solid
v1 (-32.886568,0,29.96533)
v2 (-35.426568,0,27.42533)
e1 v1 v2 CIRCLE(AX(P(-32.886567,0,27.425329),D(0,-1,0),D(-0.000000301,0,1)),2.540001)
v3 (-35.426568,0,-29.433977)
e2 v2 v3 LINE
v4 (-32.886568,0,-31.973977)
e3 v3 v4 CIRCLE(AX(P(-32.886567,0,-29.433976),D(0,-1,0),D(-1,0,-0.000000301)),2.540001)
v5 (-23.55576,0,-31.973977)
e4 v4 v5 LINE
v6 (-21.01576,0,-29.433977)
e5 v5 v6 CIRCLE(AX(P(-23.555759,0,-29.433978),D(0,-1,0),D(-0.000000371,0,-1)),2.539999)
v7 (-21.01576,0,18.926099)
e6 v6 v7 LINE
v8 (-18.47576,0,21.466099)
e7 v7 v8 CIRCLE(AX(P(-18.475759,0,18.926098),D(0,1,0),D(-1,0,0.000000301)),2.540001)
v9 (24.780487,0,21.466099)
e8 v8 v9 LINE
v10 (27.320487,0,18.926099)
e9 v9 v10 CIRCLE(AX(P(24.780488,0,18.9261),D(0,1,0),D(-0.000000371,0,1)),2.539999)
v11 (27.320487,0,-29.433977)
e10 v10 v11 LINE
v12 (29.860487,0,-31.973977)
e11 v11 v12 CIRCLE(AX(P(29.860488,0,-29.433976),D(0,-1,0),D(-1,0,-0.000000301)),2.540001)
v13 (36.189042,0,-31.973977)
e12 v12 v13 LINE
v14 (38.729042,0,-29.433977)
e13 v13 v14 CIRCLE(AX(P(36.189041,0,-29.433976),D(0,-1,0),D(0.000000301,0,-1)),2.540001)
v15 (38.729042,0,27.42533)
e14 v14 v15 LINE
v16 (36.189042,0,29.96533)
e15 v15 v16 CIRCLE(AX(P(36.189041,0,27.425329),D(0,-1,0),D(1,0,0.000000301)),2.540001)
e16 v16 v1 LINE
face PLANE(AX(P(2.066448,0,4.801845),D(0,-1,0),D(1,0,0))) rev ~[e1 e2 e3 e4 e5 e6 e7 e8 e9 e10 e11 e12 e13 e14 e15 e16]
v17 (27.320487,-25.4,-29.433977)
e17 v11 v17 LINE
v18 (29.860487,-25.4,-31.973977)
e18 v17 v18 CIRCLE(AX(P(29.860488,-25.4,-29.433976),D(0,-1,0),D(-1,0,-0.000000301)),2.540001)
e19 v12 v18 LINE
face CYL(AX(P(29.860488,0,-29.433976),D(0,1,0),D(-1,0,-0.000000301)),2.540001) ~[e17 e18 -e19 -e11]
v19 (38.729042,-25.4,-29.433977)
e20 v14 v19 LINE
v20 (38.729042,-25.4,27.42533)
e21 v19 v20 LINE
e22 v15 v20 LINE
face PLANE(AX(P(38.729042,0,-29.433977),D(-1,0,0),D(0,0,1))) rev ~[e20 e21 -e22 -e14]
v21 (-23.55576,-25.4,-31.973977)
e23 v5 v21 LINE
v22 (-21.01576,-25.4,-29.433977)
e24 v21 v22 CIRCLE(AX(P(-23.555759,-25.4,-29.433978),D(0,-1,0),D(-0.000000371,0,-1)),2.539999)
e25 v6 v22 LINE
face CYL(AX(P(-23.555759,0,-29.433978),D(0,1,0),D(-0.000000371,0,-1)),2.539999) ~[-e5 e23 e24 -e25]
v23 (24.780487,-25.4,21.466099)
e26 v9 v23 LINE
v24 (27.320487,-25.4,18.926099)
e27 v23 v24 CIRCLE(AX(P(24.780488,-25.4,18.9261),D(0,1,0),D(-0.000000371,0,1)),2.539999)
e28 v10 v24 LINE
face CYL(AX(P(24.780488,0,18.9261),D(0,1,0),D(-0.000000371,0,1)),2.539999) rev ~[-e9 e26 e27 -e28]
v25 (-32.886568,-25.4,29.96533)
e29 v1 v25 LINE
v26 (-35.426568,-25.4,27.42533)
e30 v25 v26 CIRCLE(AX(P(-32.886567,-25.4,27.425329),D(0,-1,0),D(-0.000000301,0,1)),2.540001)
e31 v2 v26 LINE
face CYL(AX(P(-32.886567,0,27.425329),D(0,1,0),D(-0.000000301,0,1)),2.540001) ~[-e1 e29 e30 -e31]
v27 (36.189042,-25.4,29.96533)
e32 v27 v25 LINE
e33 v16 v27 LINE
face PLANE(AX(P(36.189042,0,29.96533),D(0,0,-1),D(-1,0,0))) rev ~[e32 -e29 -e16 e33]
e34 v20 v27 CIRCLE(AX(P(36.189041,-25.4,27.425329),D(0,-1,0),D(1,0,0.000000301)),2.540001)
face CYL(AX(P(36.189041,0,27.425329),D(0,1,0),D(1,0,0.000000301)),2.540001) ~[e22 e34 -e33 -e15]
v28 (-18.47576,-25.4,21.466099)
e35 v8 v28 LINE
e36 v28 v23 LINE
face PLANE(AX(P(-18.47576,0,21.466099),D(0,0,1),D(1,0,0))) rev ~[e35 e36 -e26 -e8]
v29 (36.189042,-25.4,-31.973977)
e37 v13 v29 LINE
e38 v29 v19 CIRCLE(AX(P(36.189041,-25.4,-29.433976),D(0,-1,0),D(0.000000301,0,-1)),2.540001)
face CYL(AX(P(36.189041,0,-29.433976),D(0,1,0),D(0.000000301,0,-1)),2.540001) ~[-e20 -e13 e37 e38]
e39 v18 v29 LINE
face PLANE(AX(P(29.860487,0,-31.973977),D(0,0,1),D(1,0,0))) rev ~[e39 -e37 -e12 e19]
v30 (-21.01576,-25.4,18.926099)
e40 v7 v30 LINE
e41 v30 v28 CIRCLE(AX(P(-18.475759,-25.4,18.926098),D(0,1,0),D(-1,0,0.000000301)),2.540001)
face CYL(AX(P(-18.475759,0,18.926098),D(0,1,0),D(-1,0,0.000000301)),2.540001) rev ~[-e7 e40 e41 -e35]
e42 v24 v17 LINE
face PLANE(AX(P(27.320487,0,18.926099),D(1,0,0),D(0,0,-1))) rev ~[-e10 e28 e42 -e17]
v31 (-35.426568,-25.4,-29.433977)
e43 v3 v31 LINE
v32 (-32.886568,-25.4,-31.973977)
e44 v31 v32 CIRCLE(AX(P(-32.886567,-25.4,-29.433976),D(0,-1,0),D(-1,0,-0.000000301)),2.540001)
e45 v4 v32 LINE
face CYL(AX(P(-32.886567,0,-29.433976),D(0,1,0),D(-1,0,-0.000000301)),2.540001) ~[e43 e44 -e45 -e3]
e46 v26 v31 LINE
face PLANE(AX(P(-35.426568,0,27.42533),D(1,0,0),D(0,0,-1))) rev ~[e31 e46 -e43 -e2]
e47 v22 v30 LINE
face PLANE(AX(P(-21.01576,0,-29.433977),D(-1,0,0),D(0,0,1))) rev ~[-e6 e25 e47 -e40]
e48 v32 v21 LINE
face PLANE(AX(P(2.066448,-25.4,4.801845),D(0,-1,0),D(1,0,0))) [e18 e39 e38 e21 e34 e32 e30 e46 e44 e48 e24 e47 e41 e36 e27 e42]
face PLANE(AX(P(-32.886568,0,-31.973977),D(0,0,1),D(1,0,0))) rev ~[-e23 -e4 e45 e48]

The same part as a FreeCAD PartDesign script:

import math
import FreeCAD as App
import Part
import Sketcher

V = App.Vector
Q = App.Units.Quantity

doc = App.newDocument("Part")
body = doc.addObject("PartDesign::Body", "Body")

# Sketch on XZ plane
sketch1 = doc.addObject("Sketcher::SketchObject", "Sketch")
body.addObject(sketch1)
sketch1.AttachmentSupport = (doc.XZ_Plane, [""])
sketch1.MapMode = "FlatFace"
sketch1.addGeometry(Part.LineSegment(V(36.189042, 29.96533, 0), V(-32.886568, 29.96533, 0)), False)
sketch1.addGeometry(Part.ArcOfCircle(Part.Circle(V(-32.886567, 27.425329, 0), V(0, 0, 1), 2.540001), math.radians(90.000017), math.radians(179.999983)), False)
sketch1.addGeometry(Part.LineSegment(V(-35.426568, 27.42533, 0), V(-35.426568, -29.433977, 0)), False)
sketch1.addGeometry(Part.ArcOfCircle(Part.Circle(V(-32.886567, -29.433976, 0), V(0, 0, 1), 2.540001), math.radians(-179.999983), math.radians(-90.000017)), False)
sketch1.addGeometry(Part.LineSegment(V(-32.886568, -31.973977, 0), V(-23.55576, -31.973977, 0)), False)
sketch1.addGeometry(Part.ArcOfCircle(Part.Circle(V(-23.555759, -29.433978, 0), V(0, 0, 1), 2.539999), math.radians(-90.000021), math.radians(0.000021)), False)
sketch1.addGeometry(Part.LineSegment(V(-21.01576, -29.433977, 0), V(-21.01576, 18.926099, 0)), False)
sketch1.addGeometry(Part.ArcOfCircle(Part.Circle(V(-18.475759, 18.926098, 0), V(0, 0, 1), 2.540001), math.radians(90.000017), math.radians(179.999983)), False)
sketch1.addGeometry(Part.LineSegment(V(-18.47576, 21.466099, 0), V(24.780487, 21.466099, 0)), False)
sketch1.addGeometry(Part.ArcOfCircle(Part.Circle(V(24.780488, 18.9261, 0), V(0, 0, 1), 2.539999), math.radians(-0.000021), math.radians(90.000021)), False)
sketch1.addGeometry(Part.LineSegment(V(27.320487, 18.926099, 0), V(27.320487, -29.433977, 0)), False)
sketch1.addGeometry(Part.ArcOfCircle(Part.Circle(V(29.860488, -29.433976, 0), V(0, 0, 1), 2.540001), math.radians(-179.999983), math.radians(-90.000017)), False)
sketch1.addGeometry(Part.LineSegment(V(29.860487, -31.973977, 0), V(36.189042, -31.973977, 0)), False)
sketch1.addGeometry(Part.ArcOfCircle(Part.Circle(V(36.189041, -29.433976, 0), V(0, 0, 1), 2.540001), math.radians(-89.999983), math.radians(-0.000017)), False)
sketch1.addGeometry(Part.LineSegment(V(38.729042, -29.433977, 0), V(38.729042, 27.42533, 0)), False)
sketch1.addGeometry(Part.ArcOfCircle(Part.Circle(V(36.189041, 27.425329, 0), V(0, 0, 1), 2.540001), math.radians(0.000017), math.radians(89.999983)), False)
sketch1.addConstraint(Sketcher.Constraint("Tangent", 0, 2, 1, 1))
sketch1.addConstraint(Sketcher.Constraint("Tangent", 1, 2, 2, 1))
sketch1.addConstraint(Sketcher.Constraint("Tangent", 2, 2, 3, 1))
sketch1.addConstraint(Sketcher.Constraint("Tangent", 3, 2, 4, 1))
sketch1.addConstraint(Sketcher.Constraint("Tangent", 4, 2, 5, 1))
sketch1.addConstraint(Sketcher.Constraint("Tangent", 5, 2, 6, 1))
sketch1.addConstraint(Sketcher.Constraint("Tangent", 6, 2, 7, 2))
sketch1.addConstraint(Sketcher.Constraint("Tangent", 7, 1, 8, 1))
sketch1.addConstraint(Sketcher.Constraint("Tangent", 8, 2, 9, 2))
sketch1.addConstraint(Sketcher.Constraint("Tangent", 9, 1, 10, 1))
sketch1.addConstraint(Sketcher.Constraint("Tangent", 10, 2, 11, 1))
sketch1.addConstraint(Sketcher.Constraint("Tangent", 11, 2, 12, 1))
sketch1.addConstraint(Sketcher.Constraint("Tangent", 12, 2, 13, 1))
sketch1.addConstraint(Sketcher.Constraint("Tangent", 13, 2, 14, 1))
sketch1.addConstraint(Sketcher.Constraint("Tangent", 14, 2, 15, 1))
sketch1.addConstraint(Sketcher.Constraint("Tangent", 15, 2, 0, 1))
sketch1.addConstraint(Sketcher.Constraint("Horizontal", 0))
sketch1.addConstraint(Sketcher.Constraint("Vertical", 2))
sketch1.addConstraint(Sketcher.Constraint("Horizontal", 4))
sketch1.addConstraint(Sketcher.Constraint("Vertical", 6))
sketch1.addConstraint(Sketcher.Constraint("Horizontal", 8))
sketch1.addConstraint(Sketcher.Constraint("Vertical", 10))
sketch1.addConstraint(Sketcher.Constraint("Horizontal", 12))
sketch1.addConstraint(Sketcher.Constraint("Vertical", 14))
sketch1.addConstraint(Sketcher.Constraint("Equal", 1, 3))
sketch1.addConstraint(Sketcher.Constraint("Equal", 3, 5))
sketch1.addConstraint(Sketcher.Constraint("Equal", 5, 7))
sketch1.addConstraint(Sketcher.Constraint("Equal", 7, 9))
sketch1.addConstraint(Sketcher.Constraint("Equal", 9, 11))
sketch1.addConstraint(Sketcher.Constraint("Equal", 11, 13))
sketch1.addConstraint(Sketcher.Constraint("Equal", 13, 15))
sketch1.addConstraint(Sketcher.Constraint("Horizontal", 5, 3, 11, 3))
sketch1.addConstraint(Sketcher.Constraint("Radius", 1, Q("0.1 in")))
sketch1.addConstraint(Sketcher.Constraint("DistanceX", 0, 2, 0, 1, Q("69.07561 mm")))
sketch1.addConstraint(Sketcher.Constraint("DistanceY", -1, 1, 7, 3, Q("18.926098 mm")))
sketch1.addConstraint(Sketcher.Constraint("DistanceX", 5, 3, 13, 3, Q("59.7448 mm")))
sketch1.addConstraint(Sketcher.Constraint("DistanceX", 8, 1, 8, 2, Q("43.256247 mm")))
sketch1.addConstraint(Sketcher.Constraint("DistanceY", 2, 2, 2, 1, Q("56.859307 mm")))
sketch1.addConstraint(Sketcher.Constraint("DistanceY", 6, 1, 6, 2, Q("48.360076 mm")))
sketch1.addConstraint(Sketcher.Constraint("DistanceX", 5, 3, -1, 1, Q("23.555759 mm")))
pad1 = doc.addObject("PartDesign::Pad", "Pad")
body.addObject(pad1)
pad1.Profile = sketch1
pad1.Length = Q("1 in")

doc.recompute()
